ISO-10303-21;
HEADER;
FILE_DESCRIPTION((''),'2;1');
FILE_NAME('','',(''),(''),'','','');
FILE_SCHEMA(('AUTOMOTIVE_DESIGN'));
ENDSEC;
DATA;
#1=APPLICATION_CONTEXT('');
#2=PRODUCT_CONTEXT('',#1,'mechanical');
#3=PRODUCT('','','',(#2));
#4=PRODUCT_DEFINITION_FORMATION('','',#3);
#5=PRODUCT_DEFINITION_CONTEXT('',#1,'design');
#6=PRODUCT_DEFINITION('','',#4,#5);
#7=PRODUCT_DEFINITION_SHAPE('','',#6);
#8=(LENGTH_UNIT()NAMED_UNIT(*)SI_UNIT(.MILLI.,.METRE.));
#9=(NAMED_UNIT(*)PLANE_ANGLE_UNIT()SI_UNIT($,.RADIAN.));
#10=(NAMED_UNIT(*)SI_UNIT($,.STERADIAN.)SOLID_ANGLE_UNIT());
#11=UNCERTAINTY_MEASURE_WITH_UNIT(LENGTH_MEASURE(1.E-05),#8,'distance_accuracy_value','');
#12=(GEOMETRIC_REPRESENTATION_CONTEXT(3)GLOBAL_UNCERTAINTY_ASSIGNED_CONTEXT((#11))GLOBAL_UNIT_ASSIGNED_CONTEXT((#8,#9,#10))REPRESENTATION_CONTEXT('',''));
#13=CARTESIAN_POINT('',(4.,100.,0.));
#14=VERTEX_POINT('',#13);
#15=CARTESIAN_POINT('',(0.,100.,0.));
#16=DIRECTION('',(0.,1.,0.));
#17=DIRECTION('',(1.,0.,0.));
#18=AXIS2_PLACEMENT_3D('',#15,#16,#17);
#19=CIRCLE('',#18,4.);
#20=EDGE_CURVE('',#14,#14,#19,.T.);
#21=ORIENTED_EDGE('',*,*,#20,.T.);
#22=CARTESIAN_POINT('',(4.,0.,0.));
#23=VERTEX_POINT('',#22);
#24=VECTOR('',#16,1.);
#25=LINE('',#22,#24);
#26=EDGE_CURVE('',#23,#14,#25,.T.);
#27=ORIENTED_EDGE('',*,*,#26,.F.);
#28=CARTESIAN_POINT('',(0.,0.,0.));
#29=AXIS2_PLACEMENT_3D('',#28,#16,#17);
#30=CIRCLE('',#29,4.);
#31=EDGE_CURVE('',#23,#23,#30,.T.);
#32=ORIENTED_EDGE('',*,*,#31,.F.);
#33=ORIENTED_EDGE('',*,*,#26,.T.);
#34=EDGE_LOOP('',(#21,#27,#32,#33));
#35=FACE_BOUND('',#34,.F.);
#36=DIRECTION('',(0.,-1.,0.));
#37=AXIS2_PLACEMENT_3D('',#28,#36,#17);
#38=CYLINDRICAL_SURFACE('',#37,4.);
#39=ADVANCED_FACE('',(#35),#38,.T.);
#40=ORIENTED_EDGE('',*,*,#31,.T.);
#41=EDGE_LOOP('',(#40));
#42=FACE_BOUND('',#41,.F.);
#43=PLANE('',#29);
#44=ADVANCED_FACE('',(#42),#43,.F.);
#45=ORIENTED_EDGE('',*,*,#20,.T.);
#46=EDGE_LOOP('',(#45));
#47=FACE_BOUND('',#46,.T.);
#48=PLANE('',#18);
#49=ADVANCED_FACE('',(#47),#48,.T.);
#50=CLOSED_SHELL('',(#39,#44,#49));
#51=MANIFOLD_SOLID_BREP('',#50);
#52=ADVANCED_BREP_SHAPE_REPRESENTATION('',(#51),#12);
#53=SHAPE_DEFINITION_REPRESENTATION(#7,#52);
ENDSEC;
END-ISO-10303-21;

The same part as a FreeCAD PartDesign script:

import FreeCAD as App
import Part
import Sketcher
Q = App.Units.Quantity

doc = App.newDocument("Part")
body = doc.addObject("PartDesign::Body", "Body")

# Sketch on XZ plane
sketch1 = body.newObject("Sketcher::SketchObject", "Sketch")
sketch1.AttachmentSupport = (doc.getObject("XZ_Plane"), [""])
sketch1.MapMode = "FlatFace"
sketch1.addGeometry(Part.Circle(App.Vector(0, 0, 0), App.Vector(0, 0, 1), 4), False)
sketch1.addConstraint([
    Sketcher.Constraint("Coincident", 0, 3, -1, 1),
    Sketcher.Constraint("Diameter", 0, Q("8 mm")),
])
pad1 = body.newObject("PartDesign::Pad", "Pad")
pad1.Profile = sketch1
pad1.Length = 100
pad1.Reversed = True

doc.recompute()
